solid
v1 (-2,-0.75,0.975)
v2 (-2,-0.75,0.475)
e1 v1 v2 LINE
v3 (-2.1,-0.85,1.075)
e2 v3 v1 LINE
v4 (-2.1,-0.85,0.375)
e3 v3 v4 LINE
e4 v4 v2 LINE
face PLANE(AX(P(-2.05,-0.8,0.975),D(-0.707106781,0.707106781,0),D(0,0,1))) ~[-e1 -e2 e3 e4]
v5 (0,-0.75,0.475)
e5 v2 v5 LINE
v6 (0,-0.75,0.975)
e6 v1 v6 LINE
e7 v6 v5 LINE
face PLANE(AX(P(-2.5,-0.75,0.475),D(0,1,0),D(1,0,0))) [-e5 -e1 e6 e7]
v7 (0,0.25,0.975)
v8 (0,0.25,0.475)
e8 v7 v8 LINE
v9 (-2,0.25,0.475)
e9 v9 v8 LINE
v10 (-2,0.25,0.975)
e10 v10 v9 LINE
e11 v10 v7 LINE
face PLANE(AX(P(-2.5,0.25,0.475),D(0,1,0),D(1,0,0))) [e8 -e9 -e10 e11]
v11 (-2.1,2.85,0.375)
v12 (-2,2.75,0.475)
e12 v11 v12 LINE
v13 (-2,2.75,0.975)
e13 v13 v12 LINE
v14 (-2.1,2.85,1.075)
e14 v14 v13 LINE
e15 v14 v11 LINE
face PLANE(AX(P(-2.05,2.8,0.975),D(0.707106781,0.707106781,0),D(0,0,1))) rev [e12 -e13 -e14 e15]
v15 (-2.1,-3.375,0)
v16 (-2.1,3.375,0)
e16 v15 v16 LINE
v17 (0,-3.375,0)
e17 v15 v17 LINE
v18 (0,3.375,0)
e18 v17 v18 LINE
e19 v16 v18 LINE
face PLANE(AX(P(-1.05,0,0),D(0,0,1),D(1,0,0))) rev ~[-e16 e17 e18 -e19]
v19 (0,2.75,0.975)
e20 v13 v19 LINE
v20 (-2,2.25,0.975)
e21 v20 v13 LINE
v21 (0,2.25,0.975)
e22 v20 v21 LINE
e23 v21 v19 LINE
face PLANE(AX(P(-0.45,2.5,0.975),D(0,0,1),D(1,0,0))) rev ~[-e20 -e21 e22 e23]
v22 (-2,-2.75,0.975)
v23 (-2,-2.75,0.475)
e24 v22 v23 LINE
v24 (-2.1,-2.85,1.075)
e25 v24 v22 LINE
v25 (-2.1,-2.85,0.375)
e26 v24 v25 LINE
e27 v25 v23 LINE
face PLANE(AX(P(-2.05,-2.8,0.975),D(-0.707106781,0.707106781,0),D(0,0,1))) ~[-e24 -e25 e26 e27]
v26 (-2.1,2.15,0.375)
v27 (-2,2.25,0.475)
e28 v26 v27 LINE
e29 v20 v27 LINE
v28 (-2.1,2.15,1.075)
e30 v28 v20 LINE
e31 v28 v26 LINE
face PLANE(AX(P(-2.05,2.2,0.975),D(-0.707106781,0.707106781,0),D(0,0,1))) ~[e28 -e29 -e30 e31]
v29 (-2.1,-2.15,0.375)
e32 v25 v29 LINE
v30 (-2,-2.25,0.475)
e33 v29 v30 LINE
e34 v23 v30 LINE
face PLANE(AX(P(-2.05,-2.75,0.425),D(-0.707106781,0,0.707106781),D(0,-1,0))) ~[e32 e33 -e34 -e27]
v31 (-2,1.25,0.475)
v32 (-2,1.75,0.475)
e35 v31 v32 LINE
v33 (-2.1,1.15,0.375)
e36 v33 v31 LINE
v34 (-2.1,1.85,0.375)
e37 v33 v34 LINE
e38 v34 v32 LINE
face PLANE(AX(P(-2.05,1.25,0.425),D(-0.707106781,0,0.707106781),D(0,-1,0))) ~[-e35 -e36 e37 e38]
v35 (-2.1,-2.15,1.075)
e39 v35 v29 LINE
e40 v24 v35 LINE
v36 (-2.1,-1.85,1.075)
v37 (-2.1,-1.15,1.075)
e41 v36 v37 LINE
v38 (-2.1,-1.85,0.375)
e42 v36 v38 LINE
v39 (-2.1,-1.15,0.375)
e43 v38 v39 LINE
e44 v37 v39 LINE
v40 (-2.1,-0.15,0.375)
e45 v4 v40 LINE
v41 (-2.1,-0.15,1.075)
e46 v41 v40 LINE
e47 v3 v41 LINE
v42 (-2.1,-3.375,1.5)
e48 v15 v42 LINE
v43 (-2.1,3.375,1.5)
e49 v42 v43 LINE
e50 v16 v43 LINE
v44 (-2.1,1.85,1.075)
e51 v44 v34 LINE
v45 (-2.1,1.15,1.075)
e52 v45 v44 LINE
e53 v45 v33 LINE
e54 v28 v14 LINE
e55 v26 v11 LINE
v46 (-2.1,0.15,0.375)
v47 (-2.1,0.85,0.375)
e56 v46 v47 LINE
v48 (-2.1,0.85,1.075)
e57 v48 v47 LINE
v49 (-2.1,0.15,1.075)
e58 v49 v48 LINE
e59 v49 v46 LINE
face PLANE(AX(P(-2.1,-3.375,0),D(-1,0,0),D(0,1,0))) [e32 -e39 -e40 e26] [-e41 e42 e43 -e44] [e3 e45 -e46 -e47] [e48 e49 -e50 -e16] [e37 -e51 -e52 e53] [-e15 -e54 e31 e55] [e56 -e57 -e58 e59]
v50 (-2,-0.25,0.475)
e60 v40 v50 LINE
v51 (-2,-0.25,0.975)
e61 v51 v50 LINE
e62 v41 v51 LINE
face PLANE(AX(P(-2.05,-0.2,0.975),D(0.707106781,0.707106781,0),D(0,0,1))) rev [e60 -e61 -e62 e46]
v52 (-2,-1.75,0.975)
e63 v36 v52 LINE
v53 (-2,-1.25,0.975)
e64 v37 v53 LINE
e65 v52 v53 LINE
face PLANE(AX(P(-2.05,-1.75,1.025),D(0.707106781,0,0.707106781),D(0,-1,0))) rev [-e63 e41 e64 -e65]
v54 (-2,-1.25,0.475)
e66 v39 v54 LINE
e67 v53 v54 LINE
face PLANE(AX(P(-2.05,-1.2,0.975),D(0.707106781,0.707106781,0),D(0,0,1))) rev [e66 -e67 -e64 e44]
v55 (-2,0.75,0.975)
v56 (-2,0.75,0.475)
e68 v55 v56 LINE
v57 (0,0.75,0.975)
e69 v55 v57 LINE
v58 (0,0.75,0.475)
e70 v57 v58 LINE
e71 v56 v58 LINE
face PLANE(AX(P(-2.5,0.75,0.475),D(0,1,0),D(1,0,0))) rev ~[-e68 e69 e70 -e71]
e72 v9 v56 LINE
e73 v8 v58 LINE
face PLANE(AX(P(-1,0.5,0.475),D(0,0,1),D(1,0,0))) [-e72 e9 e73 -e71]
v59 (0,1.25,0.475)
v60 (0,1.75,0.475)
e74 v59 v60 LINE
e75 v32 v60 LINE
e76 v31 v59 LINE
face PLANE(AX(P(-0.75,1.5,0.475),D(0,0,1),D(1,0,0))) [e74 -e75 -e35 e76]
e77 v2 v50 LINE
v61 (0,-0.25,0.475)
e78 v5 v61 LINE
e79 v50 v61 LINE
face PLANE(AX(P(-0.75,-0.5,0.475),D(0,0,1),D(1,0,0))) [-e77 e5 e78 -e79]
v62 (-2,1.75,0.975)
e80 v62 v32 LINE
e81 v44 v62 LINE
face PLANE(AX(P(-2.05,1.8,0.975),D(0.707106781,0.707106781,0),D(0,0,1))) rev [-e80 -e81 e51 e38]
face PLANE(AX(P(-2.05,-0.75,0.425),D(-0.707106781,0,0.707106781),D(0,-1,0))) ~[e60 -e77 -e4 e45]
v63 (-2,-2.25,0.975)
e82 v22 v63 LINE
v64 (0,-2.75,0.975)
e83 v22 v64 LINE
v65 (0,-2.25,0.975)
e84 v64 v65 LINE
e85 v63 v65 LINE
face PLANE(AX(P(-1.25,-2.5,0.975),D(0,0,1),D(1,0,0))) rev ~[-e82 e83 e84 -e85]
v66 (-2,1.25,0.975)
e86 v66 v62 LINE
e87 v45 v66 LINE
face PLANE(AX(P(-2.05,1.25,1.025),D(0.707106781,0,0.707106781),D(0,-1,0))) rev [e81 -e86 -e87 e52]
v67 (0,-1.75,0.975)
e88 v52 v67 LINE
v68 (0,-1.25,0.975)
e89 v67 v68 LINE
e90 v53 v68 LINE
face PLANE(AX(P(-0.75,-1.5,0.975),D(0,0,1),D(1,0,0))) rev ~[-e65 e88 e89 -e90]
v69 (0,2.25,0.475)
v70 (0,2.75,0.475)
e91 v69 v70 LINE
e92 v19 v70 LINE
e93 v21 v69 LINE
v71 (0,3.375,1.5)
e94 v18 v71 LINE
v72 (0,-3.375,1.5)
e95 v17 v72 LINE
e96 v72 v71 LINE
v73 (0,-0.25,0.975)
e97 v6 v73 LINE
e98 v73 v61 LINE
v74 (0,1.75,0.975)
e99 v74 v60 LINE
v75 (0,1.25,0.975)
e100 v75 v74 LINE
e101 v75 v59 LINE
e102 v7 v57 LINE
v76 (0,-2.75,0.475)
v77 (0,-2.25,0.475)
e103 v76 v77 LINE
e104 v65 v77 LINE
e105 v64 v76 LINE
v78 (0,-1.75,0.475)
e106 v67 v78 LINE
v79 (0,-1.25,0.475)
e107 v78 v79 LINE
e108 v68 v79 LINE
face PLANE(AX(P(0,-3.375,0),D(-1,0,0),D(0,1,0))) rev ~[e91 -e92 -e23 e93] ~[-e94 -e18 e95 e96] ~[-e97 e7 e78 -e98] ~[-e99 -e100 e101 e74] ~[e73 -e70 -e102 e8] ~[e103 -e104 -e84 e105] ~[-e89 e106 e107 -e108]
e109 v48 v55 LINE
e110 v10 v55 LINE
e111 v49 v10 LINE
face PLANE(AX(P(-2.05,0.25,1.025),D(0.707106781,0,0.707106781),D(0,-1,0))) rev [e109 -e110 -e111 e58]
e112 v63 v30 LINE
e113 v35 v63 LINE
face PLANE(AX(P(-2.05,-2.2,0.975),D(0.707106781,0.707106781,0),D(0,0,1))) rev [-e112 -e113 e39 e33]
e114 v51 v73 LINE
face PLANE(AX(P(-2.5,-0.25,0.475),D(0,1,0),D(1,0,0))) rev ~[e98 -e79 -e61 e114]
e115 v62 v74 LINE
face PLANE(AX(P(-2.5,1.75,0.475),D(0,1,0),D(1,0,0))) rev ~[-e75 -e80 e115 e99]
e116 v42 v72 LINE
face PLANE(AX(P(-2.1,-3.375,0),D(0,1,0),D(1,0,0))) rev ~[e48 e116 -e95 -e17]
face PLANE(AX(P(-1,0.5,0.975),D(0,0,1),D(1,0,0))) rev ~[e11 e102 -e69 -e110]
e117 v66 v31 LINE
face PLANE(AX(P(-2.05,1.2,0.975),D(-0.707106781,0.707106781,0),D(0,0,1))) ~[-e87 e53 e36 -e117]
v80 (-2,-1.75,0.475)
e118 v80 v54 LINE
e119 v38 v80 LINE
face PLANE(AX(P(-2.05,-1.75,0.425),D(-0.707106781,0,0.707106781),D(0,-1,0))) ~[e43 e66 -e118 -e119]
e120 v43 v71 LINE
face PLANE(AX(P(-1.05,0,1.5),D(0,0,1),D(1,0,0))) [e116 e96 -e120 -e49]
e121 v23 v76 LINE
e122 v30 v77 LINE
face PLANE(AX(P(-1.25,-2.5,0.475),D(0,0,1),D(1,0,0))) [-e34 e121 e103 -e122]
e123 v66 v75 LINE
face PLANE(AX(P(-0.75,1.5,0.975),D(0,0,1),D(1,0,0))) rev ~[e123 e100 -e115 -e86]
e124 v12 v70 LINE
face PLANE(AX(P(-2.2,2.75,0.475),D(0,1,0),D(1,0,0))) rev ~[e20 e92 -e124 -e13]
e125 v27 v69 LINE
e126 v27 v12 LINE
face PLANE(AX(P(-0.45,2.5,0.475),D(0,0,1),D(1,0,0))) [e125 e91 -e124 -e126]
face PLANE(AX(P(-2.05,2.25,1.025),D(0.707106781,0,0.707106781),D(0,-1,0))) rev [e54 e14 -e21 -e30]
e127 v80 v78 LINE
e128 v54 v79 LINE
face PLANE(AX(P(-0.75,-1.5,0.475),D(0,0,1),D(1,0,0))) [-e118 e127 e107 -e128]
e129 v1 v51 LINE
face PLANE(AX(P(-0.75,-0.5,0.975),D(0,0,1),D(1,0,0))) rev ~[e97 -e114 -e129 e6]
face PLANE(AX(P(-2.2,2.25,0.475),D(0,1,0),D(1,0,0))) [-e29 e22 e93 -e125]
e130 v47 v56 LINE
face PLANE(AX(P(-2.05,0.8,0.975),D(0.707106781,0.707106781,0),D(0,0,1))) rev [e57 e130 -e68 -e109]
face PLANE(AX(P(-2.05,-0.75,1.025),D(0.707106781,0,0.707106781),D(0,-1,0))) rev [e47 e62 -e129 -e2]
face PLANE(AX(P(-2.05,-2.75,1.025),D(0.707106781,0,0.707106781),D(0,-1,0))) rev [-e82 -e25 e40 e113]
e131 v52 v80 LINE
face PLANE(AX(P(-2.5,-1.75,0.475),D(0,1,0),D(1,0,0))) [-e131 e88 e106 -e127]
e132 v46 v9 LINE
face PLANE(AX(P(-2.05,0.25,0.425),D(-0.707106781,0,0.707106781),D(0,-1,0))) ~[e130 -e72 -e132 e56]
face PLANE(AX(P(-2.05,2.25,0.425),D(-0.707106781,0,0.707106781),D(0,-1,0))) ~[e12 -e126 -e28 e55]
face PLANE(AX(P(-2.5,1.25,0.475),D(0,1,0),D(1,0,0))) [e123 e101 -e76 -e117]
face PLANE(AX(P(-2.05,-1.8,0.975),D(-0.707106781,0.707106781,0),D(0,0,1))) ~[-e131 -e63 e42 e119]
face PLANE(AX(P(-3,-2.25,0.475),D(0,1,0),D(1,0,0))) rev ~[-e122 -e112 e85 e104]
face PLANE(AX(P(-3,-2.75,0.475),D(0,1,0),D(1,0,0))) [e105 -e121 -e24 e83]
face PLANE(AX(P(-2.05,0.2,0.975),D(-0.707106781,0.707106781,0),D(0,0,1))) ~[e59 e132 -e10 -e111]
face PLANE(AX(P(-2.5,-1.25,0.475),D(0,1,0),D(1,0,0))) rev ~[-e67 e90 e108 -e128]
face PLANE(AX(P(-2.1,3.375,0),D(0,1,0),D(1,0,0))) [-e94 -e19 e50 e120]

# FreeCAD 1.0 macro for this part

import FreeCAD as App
import Part
import Sketcher

V = App.Vector


def edges_at(feature, points):
    """Names of the edges that pass closest to the given points."""
    edges = feature.Shape.Edges
    near = lambda p: min(range(len(edges)), key=lambda i: edges[i].distToShape(Part.Vertex(*p))[0])
    return sorted({f"Edge{near(p) + 1}" for p in points})


def add_polygon(sketch, points):
    """Adds a closed chain of lines whose ends are joined by coincident constraints."""
    first, n = sketch.GeometryCount, len(points)
    for a, b in zip(points, points[1:] + points[:1]):
        sketch.addGeometry(Part.LineSegment(App.Vector(*a, 0), App.Vector(*b, 0)), False)
    for i in range(n):
        sketch.addConstraint(Sketcher.Constraint("Coincident", first + i, 2, first + (i + 1) % n, 1))

doc = App.newDocument("Part")
body = doc.addObject("PartDesign::Body", "Body")

# Sketch on XY plane
sketch1 = body.newObject("Sketcher::SketchObject", "Sketch")
sketch1.AttachmentSupport = (doc.getObject("XY_Plane"), [""])
sketch1.MapMode = "FlatFace"
add_polygon(sketch1, [(-2.1, 5.4), (-2.1, -1.4), (0, -1.4), (0, 5.4)])  # lines 0-3
sketch1.addConstraint([
    Sketcher.Constraint("Vertical", 0),
    Sketcher.Constraint("Horizontal", 1),
    Sketcher.Constraint("Vertical", 2),
    Sketcher.Constraint("Horizontal", 3),
    Sketcher.Constraint("PointOnObject", 1, 2, -2),
    Sketcher.Constraint("DistanceX", 1, 1, 1, 2, 2.1),
    Sketcher.Constraint("DistanceY", 0, 2, 0, 1, 6.75),
    Sketcher.Constraint("DistanceY", 0, 2, -1, 1, 1.375),
])
pad1 = body.newObject("PartDesign::Pad", "Pad")
pad1.Profile = sketch1
pad1.Length = 1.5

# Sketch on XY plane
sketch2 = body.newObject("Sketcher::SketchObject", "Sketch001")
sketch2.AttachmentSupport = (doc.getObject("XY_Plane"), [""])
sketch2.MapMode = "FlatFace"
sketch2.AttachmentOffset = App.Placement(V(0, 0, 0.475), App.Rotation())
add_polygon(sketch2, [(-2.2, 4.8), (-2.2, 4.2), (1.3, 4.2), (1.3, 4.8)])  # lines 0-3
sketch2.addConstraint([
    Sketcher.Constraint("Vertical", 0),
    Sketcher.Constraint("Horizontal", 1),
    Sketcher.Constraint("Vertical", 2),
    Sketcher.Constraint("Horizontal", 3),
    Sketcher.Constraint("DistanceX", 1, 1, 1, 2, 3.5),
    Sketcher.Constraint("DistanceY", 0, 2, 0, 1, 0.5),
    Sketcher.Constraint("DistanceX", 0, 2, -1, 1, 2.2),
    Sketcher.Constraint("DistanceY", -1, 1, 0, 2, 4.25),
])
pocket1 = body.newObject("PartDesign::Pocket", "Pocket")
pocket1.Profile = sketch2
pocket1.Length = 0.5
pocket1.Reversed = True

# Sketch on XY plane
sketch3 = body.newObject("Sketcher::SketchObject", "Sketch002")
sketch3.AttachmentSupport = (doc.getObject("XY_Plane"), [""])
sketch3.MapMode = "FlatFace"
sketch3.AttachmentOffset = App.Placement(V(0, 0, 0.475), App.Rotation())
add_polygon(sketch3, [(-2.5, 3.8), (-2.5, 3.2), (1, 3.2), (1, 3.8)])  # lines 0-3
sketch3.addConstraint([
    Sketcher.Constraint("Vertical", 0),
    Sketcher.Constraint("Horizontal", 1),
    Sketcher.Constraint("Vertical", 2),
    Sketcher.Constraint("Horizontal", 3),
    Sketcher.Constraint("DistanceX", 1, 1, 1, 2, 3.5),
    Sketcher.Constraint("DistanceY", 0, 2, 0, 1, 0.5),
    Sketcher.Constraint("DistanceX", -1, 1, 1, 2, 1.0),
    Sketcher.Constraint("DistanceY", -1, 1, 0, 2, 3.25),
])
pocket2 = body.newObject("PartDesign::Pocket", "Pocket001")
pocket2.Profile = sketch3
pocket2.Length = 0.5
pocket2.Reversed = True

# Sketch on XY plane
sketch4 = body.newObject("Sketcher::SketchObject", "Sketch003")
sketch4.AttachmentSupport = (doc.getObject("XY_Plane"), [""])
sketch4.MapMode = "FlatFace"
sketch4.AttachmentOffset = App.Placement(V(0, 0, 0.475), App.Rotation())
add_polygon(sketch4, [(-2.5, 2.8), (-2.5, 2.2), (0.5, 2.2), (0.5, 2.8)])  # lines 0-3
sketch4.addConstraint([
    Sketcher.Constraint("Vertical", 0),
    Sketcher.Constraint("Horizontal", 1),
    Sketcher.Constraint("Vertical", 2),
    Sketcher.Constraint("Horizontal", 3),
    Sketcher.Constraint("DistanceX", 1, 1, 1, 2, 3.0),
    Sketcher.Constraint("DistanceY", 0, 2, 0, 1, 0.5),
    Sketcher.Constraint("DistanceX", 0, 2, -1, 1, 2.5),
    Sketcher.Constraint("DistanceY", -1, 1, 0, 2, 2.25),
])
pocket3 = body.newObject("PartDesign::Pocket", "Pocket002")
pocket3.Profile = sketch4
pocket3.Length = 0.5
pocket3.Reversed = True

# Sketch on XY plane
sketch5 = body.newObject("Sketcher::SketchObject", "Sketch004")
sketch5.AttachmentSupport = (doc.getObject("XY_Plane"), [""])
sketch5.MapMode = "FlatFace"
sketch5.AttachmentOffset = App.Placement(V(0, 0, 0.475), App.Rotation())
add_polygon(sketch5, [(-2.5, 1.8), (-2.5, 1.2), (1, 1.2), (1, 1.8)])  # lines 0-3
sketch5.addConstraint([
    Sketcher.Constraint("Vertical", 0),
    Sketcher.Constraint("Horizontal", 1),
    Sketcher.Constraint("Vertical", 2),
    Sketcher.Constraint("Horizontal", 3),
    Sketcher.Constraint("DistanceX", 1, 1, 1, 2, 3.5),
    Sketcher.Constraint("DistanceY", 0, 2, 0, 1, 0.5),
    Sketcher.Constraint("DistanceX", -1, 1, 1, 2, 1.0),
    Sketcher.Constraint("DistanceY", -1, 1, 0, 2, 1.25),
])
pocket4 = body.newObject("PartDesign::Pocket", "Pocket003")
pocket4.Profile = sketch5
pocket4.Length = 0.5
pocket4.Reversed = True

# Sketch on XY plane
sketch6 = body.newObject("Sketcher::SketchObject", "Sketch005")
sketch6.AttachmentSupport = (doc.getObject("XY_Plane"), [""])
sketch6.MapMode = "FlatFace"
sketch6.AttachmentOffset = App.Placement(V(0, 0, 0.475), App.Rotation())
add_polygon(sketch6, [(-2.5, 0.8), (-2.5, 0.2), (1, 0.2), (1, 0.8)])  # lines 0-3
sketch6.addConstraint([
    Sketcher.Constraint("Vertical", 0),
    Sketcher.Constraint("Horizontal", 1),
    Sketcher.Constraint("Vertical", 2),
    Sketcher.Constraint("Horizontal", 3),
    Sketcher.Constraint("DistanceX", 1, 1, 1, 2, 3.5),
    Sketcher.Constraint("DistanceY", 0, 2, 0, 1, 0.5),
    Sketcher.Constraint("DistanceX", -1, 1, 1, 2, 1.0),
    Sketcher.Constraint("DistanceY", -1, 1, 0, 2, 0.25),
])
pocket5 = body.newObject("PartDesign::Pocket", "Pocket004")
pocket5.Profile = sketch6
pocket5.Length = 0.5
pocket5.Reversed = True

# Sketch on XY plane
sketch7 = body.newObject("Sketcher::SketchObject", "Sketch006")
sketch7.AttachmentSupport = (doc.getObject("XY_Plane"), [""])
sketch7.MapMode = "FlatFace"
sketch7.AttachmentOffset = App.Placement(V(0, 0, 0.475), App.Rotation())
add_polygon(sketch7, [(-3, -0.2), (-3, -0.8), (0.5, -0.8), (0.5, -0.2)])  # lines 0-3
sketch7.addConstraint([
    Sketcher.Constraint("Vertical", 0),
    Sketcher.Constraint("Horizontal", 1),
    Sketcher.Constraint("Vertical", 2),
    Sketcher.Constraint("Horizontal", 3),
    Sketcher.Constraint("DistanceX", 1, 1, 1, 2, 3.5),
    Sketcher.Constraint("DistanceY", 0, 2, 0, 1, 0.5),
    Sketcher.Constraint("DistanceX", 0, 2, -1, 1, 3.0),
    Sketcher.Constraint("DistanceY", 0, 2, -1, 1, 0.75),
])
pocket6 = body.newObject("PartDesign::Pocket", "Pocket005")
pocket6.Profile = sketch7
pocket6.Length = 0.5
pocket6.Reversed = True
doc.recompute()

chamfer = body.newObject("PartDesign::Chamfer", "Chamfer")
chamfer.Base = (pocket6, edges_at(pocket6, [
    (-2.1, 4.5, 0.975),
    (-2.1, 4.75, 0.725),
    (-2.1, 4.5, 0.475),
    (-2.1, 4.25, 0.725),
    (-2.1, 3.75, 0.725),
    (-2.1, 3.5, 0.975),
    (-2.1, 3.25, 0.725),
    (-2.1, 3.5, 0.475),
    (-2.1, 2.75, 0.725),
    (-2.1, 2.5, 0.975),
    (-2.1, 2.5, 0.475),
    (-2.1, 2.25, 0.725),
    (-2.1, 1.75, 0.725),
    (-2.1, 1.5, 0.975),
    (-2.1, 1.5, 0.475),
    (-2.1, 1.25, 0.725),
    (-2.1, 0.75, 0.725),
    (-2.1, 0.5, 0.975),
    (-2.1, 0.5, 0.475),
    (-2.1, 0.25, 0.725),
    (-2.1, -0.25, 0.725),
    (-2.1, -0.5, 0.975),
    (-2.1, -0.5, 0.475),
    (-2.1, -0.75, 0.725),
]))
chamfer.Size = 0.1
body2 = doc.addObject("PartDesign::Body", "Body001")
doc.recompute()

body.Placement = App.Placement(V(0, -2, 0), App.Rotation(V(0, 0, 1), 0))
boolean = body2.newObject("PartDesign::Boolean", "Boolean")
boolean.Type = "Fuse"
boolean.addObjects([body])

doc.recompute()
